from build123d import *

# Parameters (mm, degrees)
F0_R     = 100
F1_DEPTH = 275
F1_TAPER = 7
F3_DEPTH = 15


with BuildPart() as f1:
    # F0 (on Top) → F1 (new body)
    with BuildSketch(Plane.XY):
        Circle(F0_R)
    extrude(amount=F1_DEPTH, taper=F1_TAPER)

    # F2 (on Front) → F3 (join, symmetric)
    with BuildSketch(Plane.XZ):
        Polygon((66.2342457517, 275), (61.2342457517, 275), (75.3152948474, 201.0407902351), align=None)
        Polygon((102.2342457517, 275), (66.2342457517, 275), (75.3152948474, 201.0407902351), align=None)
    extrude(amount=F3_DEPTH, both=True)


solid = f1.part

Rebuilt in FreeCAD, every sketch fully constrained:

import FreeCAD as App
import Part
import Sketcher

V = App.Vector
Q = App.Units.Quantity


def add_polygon(sketch, points):
    """Adds a closed chain of lines whose ends are joined by coincident constraints."""
    first, n = sketch.GeometryCount, len(points)
    for a, b in zip(points, points[1:] + points[:1]):
        sketch.addGeometry(Part.LineSegment(App.Vector(*a, 0), App.Vector(*b, 0)), False)
    for i in range(n):
        sketch.addConstraint(Sketcher.Constraint("Coincident", first + i, 2, first + (i + 1) % n, 1))

doc = App.newDocument("Part")
params = doc.addObject("Spreadsheet::Sheet", "Params")
for row, (alias, value) in enumerate([
    ("sketch1_diameter", "200 mm"),
    ("pad1_length", "275 mm"),
    ("pad1_taper", "-7 deg"),
    ("sketch2_width", "41 mm"),
    ("pad2_length", "30 mm"),
], start=1):
    params.set(f"A{row}", alias)
    params.set(f"B{row}", "=" + value)
    params.setAlias(f"B{row}", alias)

body = doc.addObject("PartDesign::Body", "Body")

# Sketch on XY plane
sketch1 = doc.addObject("Sketcher::SketchObject", "Sketch")
body.addObject(sketch1)
sketch1.AttachmentSupport = (doc.XY_Plane, [""])
sketch1.MapMode = "FlatFace"
sketch1.addGeometry(Part.Circle(V(0, 0, 0), V(0, 0, 1), 100), False)
sketch1.addConstraint([
    Sketcher.Constraint("Coincident", 0, 3, -1, 1),
    Sketcher.Constraint("Diameter", 0, 200.0),
])
sketch1.setExpression("Constraints[1]", "Params.sketch1_diameter")
pad1 = doc.addObject("PartDesign::Pad", "Pad")
body.addObject(pad1)
pad1.Profile = sketch1
pad1.setExpression("Length", "Params.pad1_length")
pad1.setExpression("TaperAngle", "Params.pad1_taper")

# Sketch on XZ plane
sketch2 = doc.addObject("Sketcher::SketchObject", "Sketch001")
body.addObject(sketch2)
sketch2.AttachmentSupport = (doc.XZ_Plane, [""])
sketch2.MapMode = "FlatFace"
add_polygon(sketch2, [(61, 275), (75, 201), (102, 275)])  # lines 0-2
sketch2.addConstraint([
    Sketcher.Constraint("Horizontal", 2),
    Sketcher.Constraint("DistanceX", 2, 2, 2, 1, 41.0),
    Sketcher.Constraint("Angle", 1, Q("70 deg")),
    Sketcher.Constraint("DistanceY", -1, 1, 1, 2, 275.0),
    Sketcher.Constraint("Distance", 0, 75.287719),
    Sketcher.Constraint("DistanceX", -1, 1, 0, 2, 75.315295),
])
sketch2.setExpression("Constraints[4]", "Params.sketch2_width")
pad2 = doc.addObject("PartDesign::Pad", "Pad001")
body.addObject(pad2)
pad2.Profile = sketch2
pad2.setExpression("Length", "Params.pad2_length")
pad2.Midplane = True

doc.recompute()
